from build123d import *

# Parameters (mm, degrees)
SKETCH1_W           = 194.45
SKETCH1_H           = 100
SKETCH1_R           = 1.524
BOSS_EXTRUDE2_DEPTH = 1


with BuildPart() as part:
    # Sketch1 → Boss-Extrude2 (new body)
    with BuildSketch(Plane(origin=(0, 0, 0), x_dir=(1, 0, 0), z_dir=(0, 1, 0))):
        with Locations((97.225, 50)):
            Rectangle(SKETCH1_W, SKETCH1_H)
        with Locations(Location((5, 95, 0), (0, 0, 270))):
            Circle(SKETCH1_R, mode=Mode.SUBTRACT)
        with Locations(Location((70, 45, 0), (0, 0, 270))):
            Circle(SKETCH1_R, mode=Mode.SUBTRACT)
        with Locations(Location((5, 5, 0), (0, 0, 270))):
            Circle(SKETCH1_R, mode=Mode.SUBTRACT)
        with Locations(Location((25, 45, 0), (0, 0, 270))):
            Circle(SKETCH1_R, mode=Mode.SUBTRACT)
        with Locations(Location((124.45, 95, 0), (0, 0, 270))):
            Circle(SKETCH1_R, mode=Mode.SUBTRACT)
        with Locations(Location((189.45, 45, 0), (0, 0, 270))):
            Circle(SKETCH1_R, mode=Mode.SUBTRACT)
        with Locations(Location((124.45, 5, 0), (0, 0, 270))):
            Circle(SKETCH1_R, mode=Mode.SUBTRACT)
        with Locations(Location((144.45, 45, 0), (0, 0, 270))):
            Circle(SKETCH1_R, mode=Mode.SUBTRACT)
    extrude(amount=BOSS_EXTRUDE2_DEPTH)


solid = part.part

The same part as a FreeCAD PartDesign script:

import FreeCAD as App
import Part
import Sketcher
from FreeCAD import Vector


def add_polygon(sketch, points):
    """Adds a closed chain of lines whose ends are joined by coincident constraints."""
    first, n = sketch.GeometryCount, len(points)
    for a, b in zip(points, points[1:] + points[:1]):
        sketch.addGeometry(Part.LineSegment(App.Vector(*a, 0), App.Vector(*b, 0)), False)
    for i in range(n):
        sketch.addConstraint(Sketcher.Constraint("Coincident", first + i, 2, first + (i + 1) % n, 1))

doc = App.newDocument("Part")
params = doc.addObject("Spreadsheet::Sheet", "Params")
for row, (alias, value) in enumerate([
    ("sketch1_height", "100 mm"),
    ("sketch1_width", "194.45 mm"),
    ("pad1_length", "1 mm"),
], start=1):
    params.set(f"A{row}", alias)
    params.set(f"B{row}", "=" + value)
    params.setAlias(f"B{row}", alias)

body = doc.addObject("PartDesign::Body", "Body")

# Sketch on XZ plane
sketch1 = body.newObject("Sketcher::SketchObject", "Sketch")
sketch1.AttachmentSupport = (doc.getObject("XZ_Plane"), [""])
sketch1.MapMode = "FlatFace"
add_polygon(sketch1, [(0, -100), (0, 0), (194.45, 0), (194.45, -100)])  # lines 0-3
sketch1.addGeometry(Part.Circle(Vector(5, -5, 0), Vector(0, 0, 1), 1.524), False)  # 4
sketch1.addGeometry(Part.Circle(Vector(25, -45, 0), Vector(0, 0, 1), 1.524), False)  # 5
sketch1.addGeometry(Part.Circle(Vector(70, -45, 0), Vector(0, 0, 1), 1.524), False)  # 6
sketch1.addGeometry(Part.Circle(Vector(124.45, -5, 0), Vector(0, 0, 1), 1.524), False)  # 7
sketch1.addGeometry(Part.Circle(Vector(144.45, -45, 0), Vector(0, 0, 1), 1.524), False)  # 8
sketch1.addGeometry(Part.Circle(Vector(189.45, -45, 0), Vector(0, 0, 1), 1.524), False)  # 9
sketch1.addGeometry(Part.Circle(Vector(5, -95, 0), Vector(0, 0, 1), 1.524), False)  # 10
sketch1.addGeometry(Part.Circle(Vector(124.45, -95, 0), Vector(0, 0, 1), 1.524), False)  # 11
sketch1.addConstraint([
    Sketcher.Constraint("Vertical", 0),
    Sketcher.Constraint("Horizontal", 1),
    Sketcher.Constraint("Vertical", 2),
    Sketcher.Constraint("Horizontal", 3),
    Sketcher.Constraint("Coincident", 0, 2, -1, 1),
    Sketcher.Constraint("Equal", 4, 5),
    Sketcher.Constraint("Equal", 5, 6),
    Sketcher.Constraint("Equal", 6, 7),
    Sketcher.Constraint("Equal", 7, 8),
    Sketcher.Constraint("Equal", 8, 9),
    Sketcher.Constraint("Equal", 9, 10),
    Sketcher.Constraint("Equal", 10, 11),
    Sketcher.Constraint("Horizontal", 5, 3, 6, 3),
    Sketcher.Constraint("Horizontal", 4, 3, 7, 3),
    Sketcher.Constraint("Horizontal", 6, 3, 8, 3),
    Sketcher.Constraint("Horizontal", 8, 3, 9, 3),
    Sketcher.Constraint("Horizontal", 10, 3, 11, 3),
    Sketcher.Constraint("Vertical", 4, 3, 10, 3),
    Sketcher.Constraint("Vertical", 7, 3, 11, 3),
    Sketcher.Constraint("DistanceY", 0, 1, 0, 2, 100.0),
    Sketcher.Constraint("Diameter", 4, 3.048),
    Sketcher.Constraint("DistanceX", -1, 1, 4, 3, 5.0),
    Sketcher.Constraint("DistanceY", 4, 3, -1, 1, 5.0),
    Sketcher.Constraint("DistanceX", -1, 1, 5, 3, 25.0),
    Sketcher.Constraint("DistanceY", 5, 3, -1, 1, 45.0),
    Sketcher.Constraint("DistanceX", -1, 1, 6, 3, 70.0),
    Sketcher.Constraint("DistanceY", 10, 3, -1, 1, 95.0),
    Sketcher.Constraint("DistanceX", 7, 3, 8, 3, 20.0),
    Sketcher.Constraint("DistanceX", 8, 3, 9, 3, 45.0),
    Sketcher.Constraint("DistanceX", 9, 3, 1, 2, 5.0),
    Sketcher.Constraint("DistanceX", 1, 1, 1, 2, 194.45),
])
sketch1.setExpression("Constraints[23]", "Params.sketch1_height")
sketch1.setExpression("Constraints[34]", "Params.sketch1_width")
pad1 = body.newObject("PartDesign::Pad", "Pad")
pad1.Profile = sketch1
pad1.setExpression("Length", "Params.pad1_length")
pad1.Reversed = True

doc.recompute()
